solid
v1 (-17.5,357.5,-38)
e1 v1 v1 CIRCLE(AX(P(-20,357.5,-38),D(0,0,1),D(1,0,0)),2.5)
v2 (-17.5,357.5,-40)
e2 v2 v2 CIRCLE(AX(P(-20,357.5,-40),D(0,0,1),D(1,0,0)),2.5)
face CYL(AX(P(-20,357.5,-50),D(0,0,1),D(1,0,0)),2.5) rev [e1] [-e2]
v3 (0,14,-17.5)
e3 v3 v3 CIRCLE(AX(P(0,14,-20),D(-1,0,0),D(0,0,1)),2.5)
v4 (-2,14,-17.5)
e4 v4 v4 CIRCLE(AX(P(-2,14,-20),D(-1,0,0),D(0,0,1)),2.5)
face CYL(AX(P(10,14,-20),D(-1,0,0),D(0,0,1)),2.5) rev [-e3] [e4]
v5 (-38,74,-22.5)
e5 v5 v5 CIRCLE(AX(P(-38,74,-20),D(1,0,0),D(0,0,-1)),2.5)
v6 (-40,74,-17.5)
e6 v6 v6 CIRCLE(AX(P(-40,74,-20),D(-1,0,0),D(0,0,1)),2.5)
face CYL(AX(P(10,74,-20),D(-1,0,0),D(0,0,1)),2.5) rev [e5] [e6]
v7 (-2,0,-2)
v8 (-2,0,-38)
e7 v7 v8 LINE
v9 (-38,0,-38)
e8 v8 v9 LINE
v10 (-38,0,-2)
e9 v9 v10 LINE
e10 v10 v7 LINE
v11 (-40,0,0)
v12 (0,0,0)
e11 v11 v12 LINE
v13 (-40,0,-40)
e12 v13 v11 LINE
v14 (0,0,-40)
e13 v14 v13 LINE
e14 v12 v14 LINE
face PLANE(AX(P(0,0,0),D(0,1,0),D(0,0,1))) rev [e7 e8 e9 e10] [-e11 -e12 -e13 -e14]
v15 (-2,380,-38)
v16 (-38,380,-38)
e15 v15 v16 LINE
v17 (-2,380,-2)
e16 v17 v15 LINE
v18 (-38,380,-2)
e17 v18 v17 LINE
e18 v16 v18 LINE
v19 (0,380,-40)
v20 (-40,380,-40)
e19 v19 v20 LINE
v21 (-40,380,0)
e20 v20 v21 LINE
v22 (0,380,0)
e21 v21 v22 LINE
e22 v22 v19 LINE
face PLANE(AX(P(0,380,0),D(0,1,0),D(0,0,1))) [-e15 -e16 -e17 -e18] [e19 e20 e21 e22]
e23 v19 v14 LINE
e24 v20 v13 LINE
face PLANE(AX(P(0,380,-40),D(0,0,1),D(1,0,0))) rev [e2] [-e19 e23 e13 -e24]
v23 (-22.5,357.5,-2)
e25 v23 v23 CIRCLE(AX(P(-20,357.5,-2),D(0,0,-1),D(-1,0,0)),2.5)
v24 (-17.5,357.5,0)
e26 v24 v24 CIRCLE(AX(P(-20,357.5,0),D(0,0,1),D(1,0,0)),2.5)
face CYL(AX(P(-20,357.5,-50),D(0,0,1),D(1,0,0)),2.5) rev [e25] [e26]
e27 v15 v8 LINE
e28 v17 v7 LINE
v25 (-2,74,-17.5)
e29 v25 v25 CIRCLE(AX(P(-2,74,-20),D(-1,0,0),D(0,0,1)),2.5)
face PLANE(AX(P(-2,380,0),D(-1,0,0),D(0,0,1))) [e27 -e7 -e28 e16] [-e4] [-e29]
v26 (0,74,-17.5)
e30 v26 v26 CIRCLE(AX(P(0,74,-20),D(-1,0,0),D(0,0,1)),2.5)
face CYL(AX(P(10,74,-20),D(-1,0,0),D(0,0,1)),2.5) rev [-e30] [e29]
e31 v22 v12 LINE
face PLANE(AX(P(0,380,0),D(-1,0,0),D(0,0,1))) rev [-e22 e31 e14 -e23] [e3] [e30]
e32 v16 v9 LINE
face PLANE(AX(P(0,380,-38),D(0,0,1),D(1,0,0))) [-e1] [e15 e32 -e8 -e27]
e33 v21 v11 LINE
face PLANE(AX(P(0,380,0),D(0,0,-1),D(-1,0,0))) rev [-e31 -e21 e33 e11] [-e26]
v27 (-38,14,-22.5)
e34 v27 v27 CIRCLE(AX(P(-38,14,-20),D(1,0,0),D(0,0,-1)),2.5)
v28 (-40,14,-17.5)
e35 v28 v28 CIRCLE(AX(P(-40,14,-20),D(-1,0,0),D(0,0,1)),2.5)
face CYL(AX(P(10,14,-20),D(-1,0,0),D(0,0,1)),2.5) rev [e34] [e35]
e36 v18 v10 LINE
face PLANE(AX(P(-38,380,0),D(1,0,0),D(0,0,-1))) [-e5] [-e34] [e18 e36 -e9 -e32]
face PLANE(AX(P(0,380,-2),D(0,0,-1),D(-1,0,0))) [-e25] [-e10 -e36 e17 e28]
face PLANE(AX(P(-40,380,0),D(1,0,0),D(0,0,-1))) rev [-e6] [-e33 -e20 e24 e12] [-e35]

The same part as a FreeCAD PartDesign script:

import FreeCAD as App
import Part
import Sketcher
from FreeCAD import Vector
Q = App.Units.Quantity

doc = App.newDocument("Part")
body = doc.addObject("PartDesign::Body", "Body")

# Sketch on XZ plane
sketch1 = body.newObject("Sketcher::SketchObject", "Sketch")
sketch1.AttachmentSupport = (doc.getObject("XZ_Plane"), [""])
sketch1.MapMode = "FlatFace"
sketch1.addGeometry(Part.LineSegment(Vector(-40, -40, 0), Vector(-40, 0, 0)), False)
sketch1.addGeometry(Part.LineSegment(Vector(-40, 0, 0), Vector(0, 0, 0)), False)
sketch1.addGeometry(Part.LineSegment(Vector(0, 0, 0), Vector(0, -40, 0)), False)
sketch1.addGeometry(Part.LineSegment(Vector(0, -40, 0), Vector(-40, -40, 0)), False)
sketch1.addGeometry(Part.LineSegment(Vector(-2, -2, 0), Vector(-38, -2, 0)), False)
sketch1.addGeometry(Part.LineSegment(Vector(-38, -2, 0), Vector(-38, -38, 0)), False)
sketch1.addGeometry(Part.LineSegment(Vector(-38, -38, 0), Vector(-2, -38, 0)), False)
sketch1.addGeometry(Part.LineSegment(Vector(-2, -38, 0), Vector(-2, -2, 0)), False)
sketch1.addConstraint(Sketcher.Constraint("Coincident", 0, 2, 1, 1))
sketch1.addConstraint(Sketcher.Constraint("Coincident", 1, 2, 2, 1))
sketch1.addConstraint(Sketcher.Constraint("Coincident", 2, 2, 3, 1))
sketch1.addConstraint(Sketcher.Constraint("Coincident", 3, 2, 0, 1))
sketch1.addConstraint(Sketcher.Constraint("Coincident", 4, 2, 5, 1))
sketch1.addConstraint(Sketcher.Constraint("Coincident", 5, 2, 6, 1))
sketch1.addConstraint(Sketcher.Constraint("Coincident", 6, 2, 7, 1))
sketch1.addConstraint(Sketcher.Constraint("Coincident", 7, 2, 4, 1))
sketch1.addConstraint(Sketcher.Constraint("Vertical", 0))
sketch1.addConstraint(Sketcher.Constraint("Horizontal", 1))
sketch1.addConstraint(Sketcher.Constraint("Vertical", 2))
sketch1.addConstraint(Sketcher.Constraint("Horizontal", 3))
sketch1.addConstraint(Sketcher.Constraint("Horizontal", 4))
sketch1.addConstraint(Sketcher.Constraint("Vertical", 5))
sketch1.addConstraint(Sketcher.Constraint("Horizontal", 6))
sketch1.addConstraint(Sketcher.Constraint("Vertical", 7))
sketch1.addConstraint(Sketcher.Constraint("Coincident", 1, 2, -1, 1))
sketch1.addConstraint(Sketcher.Constraint("Equal", 3, 0))
sketch1.addConstraint(Sketcher.Constraint("Equal", 6, 5))
sketch1.addConstraint(Sketcher.Constraint("DistanceX", 1, 1, 1, 2, Q("40 mm")))
sketch1.addConstraint(Sketcher.Constraint("DistanceX", 4, 2, 4, 1, Q("36 mm")))
sketch1.addConstraint(Sketcher.Constraint("DistanceX", 4, 2, -1, 1, Q("38 mm")))
sketch1.addConstraint(Sketcher.Constraint("DistanceY", 4, 2, -1, 1, Q("2 mm")))
pad1 = body.newObject("PartDesign::Pad", "Pad")
pad1.Profile = sketch1
pad1.Length = 380
pad1.Reversed = True

# Sketch on XY plane
sketch2 = body.newObject("Sketcher::SketchObject", "Sketch001")
sketch2.AttachmentSupport = (doc.getObject("XY_Plane"), [""])
sketch2.MapMode = "FlatFace"
sketch2.addGeometry(Part.Circle(Vector(-20, 357.5, 0), Vector(0, 0, 1), 2.5), False)
sketch2.addConstraint(Sketcher.Constraint("Diameter", 0, Q("5 mm")))
sketch2.addConstraint(Sketcher.Constraint("DistanceX", 0, 3, -1, 1, Q("20 mm")))
sketch2.addConstraint(Sketcher.Constraint("DistanceY", -1, 1, 0, 3, Q("357.5 mm")))
pocket1 = body.newObject("PartDesign::Pocket", "Pocket")
pocket1.Profile = sketch2
pocket1.Length = 50

# Sketch on YZ plane
sketch3 = body.newObject("Sketcher::SketchObject", "Sketch002")
sketch3.AttachmentSupport = (doc.getObject("YZ_Plane"), [""])
sketch3.MapMode = "FlatFace"
sketch3.AttachmentOffset = App.Placement(Vector(0, 0, -40), App.Rotation())
sketch3.addGeometry(Part.Circle(Vector(14, -20, 0), Vector(0, 0, 1), 2.5), False)
sketch3.addGeometry(Part.Circle(Vector(74, -20, 0), Vector(0, 0, 1), 2.5), False)
sketch3.addConstraint(Sketcher.Constraint("Equal", 0, 1))
sketch3.addConstraint(Sketcher.Constraint("Horizontal", 0, 3, 1, 3))
sketch3.addConstraint(Sketcher.Constraint("Diameter", 0, Q("5 mm")))
sketch3.addConstraint(Sketcher.Constraint("DistanceX", -1, 1, 0, 3, Q("14 mm")))
sketch3.addConstraint(Sketcher.Constraint("DistanceY", 0, 3, -1, 1, Q("20 mm")))
sketch3.addConstraint(Sketcher.Constraint("DistanceX", -1, 1, 1, 3, Q("74 mm")))
pocket2 = body.newObject("PartDesign::Pocket", "Pocket001")
pocket2.Profile = sketch3
pocket2.Length = 50
pocket2.Reversed = True

doc.recompute()
